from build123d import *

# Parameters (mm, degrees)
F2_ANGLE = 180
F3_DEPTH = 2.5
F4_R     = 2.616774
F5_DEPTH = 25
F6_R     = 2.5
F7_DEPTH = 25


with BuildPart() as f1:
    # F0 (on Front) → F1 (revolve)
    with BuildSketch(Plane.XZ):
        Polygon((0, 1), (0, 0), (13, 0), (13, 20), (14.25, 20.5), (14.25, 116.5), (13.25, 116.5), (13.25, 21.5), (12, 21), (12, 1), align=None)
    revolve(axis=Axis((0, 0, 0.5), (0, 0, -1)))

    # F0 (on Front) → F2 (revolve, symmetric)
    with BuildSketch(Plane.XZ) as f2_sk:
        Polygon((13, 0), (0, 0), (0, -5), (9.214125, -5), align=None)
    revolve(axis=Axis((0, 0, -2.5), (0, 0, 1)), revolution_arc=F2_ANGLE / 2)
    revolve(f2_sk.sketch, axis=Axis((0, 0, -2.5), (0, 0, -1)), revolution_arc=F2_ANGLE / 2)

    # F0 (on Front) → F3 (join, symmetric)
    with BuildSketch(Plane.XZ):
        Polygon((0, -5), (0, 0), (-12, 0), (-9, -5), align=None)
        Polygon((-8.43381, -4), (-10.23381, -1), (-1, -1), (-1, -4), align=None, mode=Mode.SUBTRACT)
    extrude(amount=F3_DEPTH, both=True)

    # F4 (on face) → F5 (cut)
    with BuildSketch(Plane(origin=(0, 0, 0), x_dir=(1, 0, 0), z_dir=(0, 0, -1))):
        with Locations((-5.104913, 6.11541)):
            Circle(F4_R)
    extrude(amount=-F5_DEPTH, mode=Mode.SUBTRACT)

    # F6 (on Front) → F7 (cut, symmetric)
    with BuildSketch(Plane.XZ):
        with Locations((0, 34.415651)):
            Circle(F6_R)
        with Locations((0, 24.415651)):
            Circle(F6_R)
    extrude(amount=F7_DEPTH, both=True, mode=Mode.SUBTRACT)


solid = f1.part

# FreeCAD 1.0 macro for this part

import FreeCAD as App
import Part
import Sketcher


def add_polygon(sketch, points):
    """Adds a closed chain of lines whose ends are joined by coincident constraints."""
    first, n = sketch.GeometryCount, len(points)
    for a, b in zip(points, points[1:] + points[:1]):
        sketch.addGeometry(Part.LineSegment(App.Vector(*a, 0), App.Vector(*b, 0)), False)
    for i in range(n):
        sketch.addConstraint(Sketcher.Constraint("Coincident", first + i, 2, first + (i + 1) % n, 1))

doc = App.newDocument("Part")
params = doc.addObject("Spreadsheet::Sheet", "Params")
for row, (alias, value) in enumerate([
    ("sketch1_width", "13 mm"),
    ("sketch1_width2", "1 mm"),
    ("sketch1_height", "20 mm"),
    ("sketch1_height2", "96 mm"),
    ("revolution_angle", "360 deg"),
    ("sketch2_width", "13 mm"),
    ("sketch2_height", "5 mm"),
    ("revolution2_angle", "90 deg"),
    ("sketch3_width", "13 mm"),
    ("sketch3_height", "5 mm"),
    ("revolution3_angle", "90 deg"),
    ("sketch4_width", "12 mm"),
    ("sketch4_width2", "9 mm"),
    ("sketch4_height", "5 mm"),
    ("sketch4_height2", "3 mm"),
    ("pad1_length", "5 mm"),
    ("pocket1_length", "25 mm"),
    ("sketch6_diameter", "5 mm"),
    ("pocket2_length", "50 mm"),
], start=1):
    params.set(f"A{row}", alias)
    params.set(f"B{row}", "=" + value)
    params.setAlias(f"B{row}", alias)

body = doc.addObject("PartDesign::Body", "Body")

sketch1 = body.newObject("Sketcher::SketchObject", "Sketch")
sketch1.AttachmentSupport = (doc.getObject("XZ_Plane"), [""])
sketch1.MapMode = "FlatFace"
add_polygon(sketch1, [(0, 1), (0, 0), (13, 0), (13, 20), (14.2, 20.5), (14.2, 116.5), (13.2, 116.5), (13.2, 21.5), (12, 21), (12, 1)])
sketch1.addConstraint(Sketcher.Constraint("Vertical", 0))
sketch1.addConstraint(Sketcher.Constraint("Horizontal", 1))
sketch1.addConstraint(Sketcher.Constraint("Vertical", 2))
sketch1.addConstraint(Sketcher.Constraint("Vertical", 4))
sketch1.addConstraint(Sketcher.Constraint("Horizontal", 5))
sketch1.addConstraint(Sketcher.Constraint("Vertical", 6))
sketch1.addConstraint(Sketcher.Constraint("Vertical", 8))
sketch1.addConstraint(Sketcher.Constraint("Horizontal", 9))
sketch1.addConstraint(Sketcher.Constraint("Coincident", 0, 2, -1, 1))
sketch1.addConstraint(Sketcher.Constraint("Parallel", 3, 7))
sketch1.addConstraint(Sketcher.Constraint("Equal", 5, 0))
sketch1.addConstraint(Sketcher.Constraint("Equal", 2, 8))
sketch1.addConstraint(Sketcher.Constraint("Equal", 3, 7))
sketch1.addConstraint(Sketcher.Constraint("DistanceX", 1, 1, 1, 2, 13.0))
sketch1.addConstraint(Sketcher.Constraint("DistanceX", 5, 2, 5, 1, 1.0))
sketch1.addConstraint(Sketcher.Constraint("DistanceY", 2, 1, 2, 2, 20.0))
sketch1.addConstraint(Sketcher.Constraint("DistanceY", 4, 1, 4, 2, 96.0))
sketch1.addConstraint(Sketcher.Constraint("DistanceY", -1, 1, 3, 2, 20.5))
sketch1.addConstraint(Sketcher.Constraint("DistanceX", -1, 1, 3, 2, 14.25))
sketch1.setExpression("Constraints[23]", "Params.sketch1_width")
sketch1.setExpression("Constraints[24]", "Params.sketch1_width2")
sketch1.setExpression("Constraints[25]", "Params.sketch1_height")
sketch1.setExpression("Constraints[26]", "Params.sketch1_height2")
revolution = body.newObject("PartDesign::Revolution", "Revolution")
revolution.Profile = sketch1
revolution.ReferenceAxis = (sketch1, ["V_Axis"])
revolution.setExpression("Angle", "Params.revolution_angle")

sketch2 = body.newObject("Sketcher::SketchObject", "Sketch001")
sketch2.AttachmentSupport = (doc.getObject("XZ_Plane"), [""])
sketch2.MapMode = "FlatFace"
add_polygon(sketch2, [(13, 0), (0, 0), (0, -5), (9, -5)])
sketch2.addConstraint(Sketcher.Constraint("Horizontal", 0))
sketch2.addConstraint(Sketcher.Constraint("Vertical", 1))
sketch2.addConstraint(Sketcher.Constraint("Horizontal", 2))
sketch2.addConstraint(Sketcher.Constraint("Coincident", 0, 2, -1, 1))
sketch2.addConstraint(Sketcher.Constraint("DistanceX", 0, 2, 0, 1, 13.0))
sketch2.addConstraint(Sketcher.Constraint("DistanceY", 1, 2, 1, 1, 5.0))
sketch2.addConstraint(Sketcher.Constraint("Distance", 3, 6.271591))
sketch2.setExpression("Constraints[8]", "Params.sketch2_width")
sketch2.setExpression("Constraints[9]", "Params.sketch2_height")
revolution2 = body.newObject("PartDesign::Revolution", "Revolution001")
revolution2.Profile = sketch2
revolution2.ReferenceAxis = (sketch2, ["V_Axis"])
revolution2.setExpression("Angle", "Params.revolution2_angle")

sketch3 = body.newObject("Sketcher::SketchObject", "Sketch002")
sketch3.AttachmentSupport = (doc.getObject("XZ_Plane"), [""])
sketch3.MapMode = "FlatFace"
add_polygon(sketch3, [(13, 0), (0, 0), (0, -5), (9, -5)])
sketch3.addConstraint(Sketcher.Constraint("Horizontal", 0))
sketch3.addConstraint(Sketcher.Constraint("Vertical", 1))
sketch3.addConstraint(Sketcher.Constraint("Horizontal", 2))
sketch3.addConstraint(Sketcher.Constraint("Coincident", 0, 2, -1, 1))
sketch3.addConstraint(Sketcher.Constraint("DistanceX", 0, 2, 0, 1, 13.0))
sketch3.addConstraint(Sketcher.Constraint("DistanceY", 1, 2, 1, 1, 5.0))
sketch3.addConstraint(Sketcher.Constraint("Distance", 3, 6.271591))
sketch3.setExpression("Constraints[8]", "Params.sketch3_width")
sketch3.setExpression("Constraints[9]", "Params.sketch3_height")
revolution3 = body.newObject("PartDesign::Revolution", "Revolution002")
revolution3.Profile = sketch3
revolution3.ReferenceAxis = (sketch3, ["V_Axis"])
revolution3.setExpression("Angle", "Params.revolution3_angle")
revolution3.Reversed = True

sketch4 = body.newObject("Sketcher::SketchObject", "Sketch003")
sketch4.AttachmentSupport = (doc.getObject("XZ_Plane"), [""])
sketch4.MapMode = "FlatFace"
add_polygon(sketch4, [(0, -5), (0, 0), (-12, 0), (-9, -5)])
add_polygon(sketch4, [(-1, -4), (-8.4, -4), (-10.2, -1), (-1, -1)])
sketch4.addConstraint(Sketcher.Constraint("Vertical", 0))
sketch4.addConstraint(Sketcher.Constraint("Horizontal", 1))
sketch4.addConstraint(Sketcher.Constraint("Horizontal", 3))
sketch4.addConstraint(Sketcher.Constraint("Horizontal", 4))
sketch4.addConstraint(Sketcher.Constraint("Horizontal", 6))
sketch4.addConstraint(Sketcher.Constraint("Vertical", 7))
sketch4.addConstraint(Sketcher.Constraint("Coincident", 0, 2, -1, 1))
sketch4.addConstraint(Sketcher.Constraint("Parallel", 2, 5))
sketch4.addConstraint(Sketcher.Constraint("DistanceX", 1, 2, 1, 1, 12.0))
sketch4.addConstraint(Sketcher.Constraint("DistanceX", 3, 1, 3, 2, 9.0))
sketch4.addConstraint(Sketcher.Constraint("DistanceY", 0, 1, 0, 2, 5.0))
sketch4.addConstraint(Sketcher.Constraint("DistanceY", 7, 2, 7, 1, 3.0))
sketch4.addConstraint(Sketcher.Constraint("DistanceY", 4, 2, -1, 1, 4.0))
sketch4.addConstraint(Sketcher.Constraint("DistanceX", 6, 2, -1, 1, 1.0))
sketch4.addConstraint(Sketcher.Constraint("DistanceX", 4, 2, 4, 1, 7.43381))
sketch4.setExpression("Constraints[16]", "Params.sketch4_width")
sketch4.setExpression("Constraints[17]", "Params.sketch4_width2")
sketch4.setExpression("Constraints[18]", "Params.sketch4_height")
sketch4.setExpression("Constraints[19]", "Params.sketch4_height2")
pad1 = body.newObject("PartDesign::Pad", "Pad")
pad1.Profile = sketch4
pad1.setExpression("Length", "Params.pad1_length")
pad1.Midplane = True

sketch5 = body.newObject("Sketcher::SketchObject", "Sketch004")
sketch5.AttachmentSupport = (doc.getObject("XY_Plane"), [""])
sketch5.MapMode = "FlatFace"
sketch5.addGeometry(Part.Circle(App.Vector(-5.1, -6.1, 0), App.Vector(0, 0, 1), 2.6), False)
sketch5.addConstraint(Sketcher.Constraint("Diameter", 0, 5.233548))
sketch5.addConstraint(Sketcher.Constraint("DistanceY", 0, 3, -1, 1, 6.11541))
sketch5.addConstraint(Sketcher.Constraint("DistanceX", 0, 3, -1, 1, 5.104913))
pocket1 = body.newObject("PartDesign::Pocket", "Pocket")
pocket1.Profile = sketch5
pocket1.setExpression("Length", "Params.pocket1_length")
pocket1.Reversed = True

sketch6 = body.newObject("Sketcher::SketchObject", "Sketch005")
sketch6.AttachmentSupport = (doc.getObject("XZ_Plane"), [""])
sketch6.MapMode = "FlatFace"
sketch6.addGeometry(Part.Circle(App.Vector(0, 34.4, 0), App.Vector(0, 0, 1), 2.5), False)
sketch6.addGeometry(Part.Circle(App.Vector(0, 24.4, 0), App.Vector(0, 0, 1), 2.5), False)
sketch6.addConstraint(Sketcher.Constraint("Equal", 0, 1))
sketch6.addConstraint(Sketcher.Constraint("PointOnObject", 0, 3, -2))
sketch6.addConstraint(Sketcher.Constraint("PointOnObject", 1, 3, -2))
sketch6.addConstraint(Sketcher.Constraint("Diameter", 0, 5.0))
sketch6.addConstraint(Sketcher.Constraint("DistanceY", 1, 3, 0, 3, 10.0))
sketch6.addConstraint(Sketcher.Constraint("DistanceY", -1, 1, 0, 3, 34.415651))
sketch6.setExpression("Constraints[3]", "Params.sketch6_diameter")
pocket2 = body.newObject("PartDesign::Pocket", "Pocket001")
pocket2.Profile = sketch6
pocket2.setExpression("Length", "Params.pocket2_length")
pocket2.Midplane = True

doc.recompute()
